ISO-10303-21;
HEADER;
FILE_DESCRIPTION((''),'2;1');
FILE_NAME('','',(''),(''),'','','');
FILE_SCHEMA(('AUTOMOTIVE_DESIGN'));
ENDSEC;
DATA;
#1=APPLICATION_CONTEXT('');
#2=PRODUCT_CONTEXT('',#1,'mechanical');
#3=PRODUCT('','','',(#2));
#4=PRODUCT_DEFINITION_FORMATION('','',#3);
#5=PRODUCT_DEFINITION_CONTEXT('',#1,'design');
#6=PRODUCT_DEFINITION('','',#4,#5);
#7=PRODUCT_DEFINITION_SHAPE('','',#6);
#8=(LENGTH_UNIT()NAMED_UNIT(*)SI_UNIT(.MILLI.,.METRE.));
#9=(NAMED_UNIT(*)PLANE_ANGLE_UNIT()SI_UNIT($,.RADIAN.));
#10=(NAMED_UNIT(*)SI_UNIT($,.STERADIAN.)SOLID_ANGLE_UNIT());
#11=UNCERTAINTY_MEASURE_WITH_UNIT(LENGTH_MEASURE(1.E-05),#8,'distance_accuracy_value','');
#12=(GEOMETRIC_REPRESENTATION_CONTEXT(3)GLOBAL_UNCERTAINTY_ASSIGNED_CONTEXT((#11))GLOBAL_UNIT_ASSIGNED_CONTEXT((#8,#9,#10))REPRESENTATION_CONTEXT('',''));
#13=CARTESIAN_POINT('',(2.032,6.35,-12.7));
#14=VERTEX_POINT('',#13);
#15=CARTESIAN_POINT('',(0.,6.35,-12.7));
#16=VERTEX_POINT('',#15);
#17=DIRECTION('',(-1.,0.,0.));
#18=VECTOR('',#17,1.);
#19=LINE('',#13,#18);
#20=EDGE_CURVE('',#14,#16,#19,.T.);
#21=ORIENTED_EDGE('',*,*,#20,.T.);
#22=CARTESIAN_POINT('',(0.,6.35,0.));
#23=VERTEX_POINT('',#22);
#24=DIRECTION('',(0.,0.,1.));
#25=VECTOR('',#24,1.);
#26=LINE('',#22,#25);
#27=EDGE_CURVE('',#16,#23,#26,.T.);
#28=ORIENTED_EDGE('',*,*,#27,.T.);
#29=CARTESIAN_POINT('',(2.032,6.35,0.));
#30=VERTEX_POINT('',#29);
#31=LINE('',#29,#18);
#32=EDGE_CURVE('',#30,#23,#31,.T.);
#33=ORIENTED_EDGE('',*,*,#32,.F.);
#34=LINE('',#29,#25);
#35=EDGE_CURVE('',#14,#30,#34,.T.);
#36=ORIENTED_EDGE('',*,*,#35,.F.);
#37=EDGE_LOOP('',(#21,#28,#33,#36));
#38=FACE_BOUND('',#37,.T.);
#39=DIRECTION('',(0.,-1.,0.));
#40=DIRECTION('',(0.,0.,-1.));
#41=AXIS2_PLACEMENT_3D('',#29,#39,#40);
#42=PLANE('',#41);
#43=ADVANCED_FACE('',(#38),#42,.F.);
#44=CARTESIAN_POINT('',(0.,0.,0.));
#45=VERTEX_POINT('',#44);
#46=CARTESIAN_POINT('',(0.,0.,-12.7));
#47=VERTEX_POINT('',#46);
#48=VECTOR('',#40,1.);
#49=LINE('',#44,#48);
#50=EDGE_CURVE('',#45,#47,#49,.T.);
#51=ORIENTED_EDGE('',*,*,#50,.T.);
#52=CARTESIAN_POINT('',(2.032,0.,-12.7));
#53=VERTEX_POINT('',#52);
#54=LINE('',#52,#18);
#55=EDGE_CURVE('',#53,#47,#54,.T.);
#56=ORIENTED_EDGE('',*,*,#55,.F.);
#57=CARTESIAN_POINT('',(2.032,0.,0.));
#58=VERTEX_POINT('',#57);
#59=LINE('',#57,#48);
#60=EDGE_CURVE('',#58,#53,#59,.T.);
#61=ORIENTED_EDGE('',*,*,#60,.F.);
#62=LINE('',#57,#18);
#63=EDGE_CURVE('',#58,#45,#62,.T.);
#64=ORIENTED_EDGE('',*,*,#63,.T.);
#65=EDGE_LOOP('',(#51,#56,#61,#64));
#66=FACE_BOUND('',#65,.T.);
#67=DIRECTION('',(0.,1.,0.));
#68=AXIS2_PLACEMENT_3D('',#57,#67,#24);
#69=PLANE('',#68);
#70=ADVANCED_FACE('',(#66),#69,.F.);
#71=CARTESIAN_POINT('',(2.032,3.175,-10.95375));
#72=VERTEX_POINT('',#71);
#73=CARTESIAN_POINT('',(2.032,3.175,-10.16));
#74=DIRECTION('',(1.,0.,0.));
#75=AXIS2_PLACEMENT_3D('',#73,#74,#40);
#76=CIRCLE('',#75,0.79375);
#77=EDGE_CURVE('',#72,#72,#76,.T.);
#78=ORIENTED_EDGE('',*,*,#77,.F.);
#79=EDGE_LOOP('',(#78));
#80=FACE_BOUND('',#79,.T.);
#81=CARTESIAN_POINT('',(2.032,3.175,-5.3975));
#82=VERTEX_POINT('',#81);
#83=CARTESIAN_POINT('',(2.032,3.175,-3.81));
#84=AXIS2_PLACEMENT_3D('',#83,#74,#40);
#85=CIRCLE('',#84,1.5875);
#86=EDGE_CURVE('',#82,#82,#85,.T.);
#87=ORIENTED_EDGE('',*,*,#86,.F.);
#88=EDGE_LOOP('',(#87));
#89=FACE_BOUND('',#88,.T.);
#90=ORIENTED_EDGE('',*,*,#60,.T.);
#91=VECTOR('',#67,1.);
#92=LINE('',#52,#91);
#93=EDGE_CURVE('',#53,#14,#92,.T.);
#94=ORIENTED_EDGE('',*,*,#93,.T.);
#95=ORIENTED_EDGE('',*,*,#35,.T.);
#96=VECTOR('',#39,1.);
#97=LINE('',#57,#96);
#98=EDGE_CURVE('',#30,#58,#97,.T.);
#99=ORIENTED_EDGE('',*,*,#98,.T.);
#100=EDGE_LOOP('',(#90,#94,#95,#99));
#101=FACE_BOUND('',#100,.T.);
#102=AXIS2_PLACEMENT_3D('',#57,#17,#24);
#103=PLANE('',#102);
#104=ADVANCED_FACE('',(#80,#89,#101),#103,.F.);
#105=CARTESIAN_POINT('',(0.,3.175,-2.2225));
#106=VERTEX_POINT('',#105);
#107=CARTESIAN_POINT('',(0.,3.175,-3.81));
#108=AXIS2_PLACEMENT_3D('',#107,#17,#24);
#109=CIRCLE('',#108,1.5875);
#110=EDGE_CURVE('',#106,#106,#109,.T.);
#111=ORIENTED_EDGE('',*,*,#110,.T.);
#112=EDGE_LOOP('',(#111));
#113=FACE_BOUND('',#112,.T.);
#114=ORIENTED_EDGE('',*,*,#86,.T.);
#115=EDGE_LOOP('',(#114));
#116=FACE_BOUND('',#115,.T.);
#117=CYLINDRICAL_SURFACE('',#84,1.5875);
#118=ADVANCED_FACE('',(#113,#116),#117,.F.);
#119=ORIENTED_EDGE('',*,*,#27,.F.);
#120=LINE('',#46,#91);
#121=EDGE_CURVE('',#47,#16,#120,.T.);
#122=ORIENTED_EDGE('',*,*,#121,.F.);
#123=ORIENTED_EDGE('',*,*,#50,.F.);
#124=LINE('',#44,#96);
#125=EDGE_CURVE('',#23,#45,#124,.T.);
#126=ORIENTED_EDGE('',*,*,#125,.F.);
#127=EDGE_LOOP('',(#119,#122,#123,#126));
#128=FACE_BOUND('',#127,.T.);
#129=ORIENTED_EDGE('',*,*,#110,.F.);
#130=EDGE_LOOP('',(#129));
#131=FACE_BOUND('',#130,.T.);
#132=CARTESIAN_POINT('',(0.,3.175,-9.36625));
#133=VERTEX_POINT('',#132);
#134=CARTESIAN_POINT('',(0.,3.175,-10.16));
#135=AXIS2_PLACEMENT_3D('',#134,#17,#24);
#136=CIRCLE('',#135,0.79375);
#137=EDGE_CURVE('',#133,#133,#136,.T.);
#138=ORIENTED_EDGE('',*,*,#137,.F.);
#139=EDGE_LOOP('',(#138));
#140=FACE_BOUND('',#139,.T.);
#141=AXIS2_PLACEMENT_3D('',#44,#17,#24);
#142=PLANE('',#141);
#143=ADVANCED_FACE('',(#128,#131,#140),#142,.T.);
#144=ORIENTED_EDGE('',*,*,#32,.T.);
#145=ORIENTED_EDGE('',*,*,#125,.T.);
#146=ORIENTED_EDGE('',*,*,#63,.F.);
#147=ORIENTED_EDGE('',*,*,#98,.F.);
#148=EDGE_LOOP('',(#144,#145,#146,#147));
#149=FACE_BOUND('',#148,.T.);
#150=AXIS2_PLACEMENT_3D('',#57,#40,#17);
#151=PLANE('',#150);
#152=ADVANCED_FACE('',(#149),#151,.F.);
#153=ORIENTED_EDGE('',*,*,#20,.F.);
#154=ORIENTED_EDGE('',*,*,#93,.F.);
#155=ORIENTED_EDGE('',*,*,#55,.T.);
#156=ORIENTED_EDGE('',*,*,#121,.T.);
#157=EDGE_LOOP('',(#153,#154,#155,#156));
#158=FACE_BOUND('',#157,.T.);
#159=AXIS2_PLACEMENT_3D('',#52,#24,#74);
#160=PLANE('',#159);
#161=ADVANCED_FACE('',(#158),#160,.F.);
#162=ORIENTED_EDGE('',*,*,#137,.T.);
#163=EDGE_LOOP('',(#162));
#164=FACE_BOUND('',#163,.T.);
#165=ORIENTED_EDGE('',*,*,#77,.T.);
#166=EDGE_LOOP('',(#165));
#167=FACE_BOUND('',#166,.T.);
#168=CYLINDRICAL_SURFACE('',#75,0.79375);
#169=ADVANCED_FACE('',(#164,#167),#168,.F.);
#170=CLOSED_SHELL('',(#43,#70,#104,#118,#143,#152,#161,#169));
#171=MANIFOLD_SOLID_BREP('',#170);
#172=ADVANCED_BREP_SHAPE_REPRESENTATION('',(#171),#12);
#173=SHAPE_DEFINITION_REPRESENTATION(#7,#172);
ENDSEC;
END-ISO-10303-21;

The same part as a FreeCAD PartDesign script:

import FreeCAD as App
import Part
import Sketcher
Q = App.Units.Quantity

doc = App.newDocument("Part")
body = doc.addObject("PartDesign::Body", "Body")

sketch1 = doc.addObject("Sketcher::SketchObject", "Sketch")
body.addObject(sketch1)
sketch1.AttachmentSupport = (doc.YZ_Plane, [""])
sketch1.MapMode = "FlatFace"
sketch1.addGeometry([
    Part.LineSegment(App.Vector(6, 0, 0), App.Vector(0, 0, 0)),
    Part.LineSegment(App.Vector(0, 0, 0), App.Vector(0, -13, 0)),
    Part.LineSegment(App.Vector(0, -13, 0), App.Vector(6, -13, 0)),
    Part.LineSegment(App.Vector(6, -13, 0), App.Vector(6, 0, 0)),
], False)
sketch1.addConstraint([
    Sketcher.Constraint("Coincident", 0, 2, 1, 1),
    Sketcher.Constraint("Coincident", 1, 2, 2, 1),
    Sketcher.Constraint("Coincident", 2, 2, 3, 1),
    Sketcher.Constraint("Coincident", 3, 2, 0, 1),
    Sketcher.Constraint("Horizontal", 0),
    Sketcher.Constraint("Vertical", 1),
    Sketcher.Constraint("Horizontal", 2),
    Sketcher.Constraint("Vertical", 3),
    Sketcher.Constraint("Coincident", 0, 2, -1, 1),
    Sketcher.Constraint("DistanceY", 1, 2, 1, 1, Q("0.5 in")),
    Sketcher.Constraint("DistanceX", 0, 2, 0, 1, Q("0.25 in")),
])
pad1 = doc.addObject("PartDesign::Pad", "Pad")
body.addObject(pad1)
pad1.Profile = sketch1
pad1.Length = Q("0.08 in")

sketch2 = doc.addObject("Sketcher::SketchObject", "Sketch001")
body.addObject(sketch2)
sketch2.AttachmentSupport = (doc.YZ_Plane, [""])
sketch2.MapMode = "FlatFace"
sketch2.AttachmentOffset = App.Placement(App.Vector(0, 0, 0.08 * 25.4), App.Rotation())
sketch2.addGeometry(Part.Circle(App.Vector(3.2, -10.2, 0), App.Vector(0, 0, 1), 0.8), False)
sketch2.addConstraint([
    Sketcher.Constraint("Diameter", 0, Q("0.0625 in")),
    Sketcher.Constraint("DistanceY", 0, 3, -1, 1, Q("0.4 in")),
    Sketcher.Constraint("DistanceX", -1, 1, 0, 3, Q("0.125 in")),
])
doc.recompute()
hole = doc.addObject("PartDesign::Hole", "Hole")
body.addObject(hole)
hole.Profile = sketch2
hole.ThreadType = "None"
hole.Diameter = Q("0.0625 in")
hole.DepthType = "Dimension"
hole.Depth = Q("2.76 in")
hole.DrillPoint = "Angled"
hole.DrillPointAngle = 118

sketch3 = doc.addObject("Sketcher::SketchObject", "Sketch002")
body.addObject(sketch3)
sketch3.AttachmentSupport = (doc.YZ_Plane, [""])
sketch3.MapMode = "FlatFace"
sketch3.AttachmentOffset = App.Placement(App.Vector(0, 0, 0.08 * 25.4), App.Rotation())
sketch3.addGeometry(Part.Circle(App.Vector(3.2, -3.8, 0), App.Vector(0, 0, 1), 1.6), False)
sketch3.addConstraint([
    Sketcher.Constraint("Diameter", 0, Q("0.125 in")),
    Sketcher.Constraint("DistanceY", 0, 3, -1, 1, Q("0.15 in")),
    Sketcher.Constraint("DistanceX", -1, 1, 0, 3, Q("0.125 in")),
])
doc.recompute()
hole2 = doc.addObject("PartDesign::Hole", "Hole001")
body.addObject(hole2)
hole2.Profile = sketch3
hole2.ThreadType = "None"
hole2.Diameter = Q("0.125 in")
hole2.DepthType = "Dimension"
hole2.Depth = Q("2.76 in")
hole2.DrillPoint = "Angled"
hole2.DrillPointAngle = 118

doc.recompute()
